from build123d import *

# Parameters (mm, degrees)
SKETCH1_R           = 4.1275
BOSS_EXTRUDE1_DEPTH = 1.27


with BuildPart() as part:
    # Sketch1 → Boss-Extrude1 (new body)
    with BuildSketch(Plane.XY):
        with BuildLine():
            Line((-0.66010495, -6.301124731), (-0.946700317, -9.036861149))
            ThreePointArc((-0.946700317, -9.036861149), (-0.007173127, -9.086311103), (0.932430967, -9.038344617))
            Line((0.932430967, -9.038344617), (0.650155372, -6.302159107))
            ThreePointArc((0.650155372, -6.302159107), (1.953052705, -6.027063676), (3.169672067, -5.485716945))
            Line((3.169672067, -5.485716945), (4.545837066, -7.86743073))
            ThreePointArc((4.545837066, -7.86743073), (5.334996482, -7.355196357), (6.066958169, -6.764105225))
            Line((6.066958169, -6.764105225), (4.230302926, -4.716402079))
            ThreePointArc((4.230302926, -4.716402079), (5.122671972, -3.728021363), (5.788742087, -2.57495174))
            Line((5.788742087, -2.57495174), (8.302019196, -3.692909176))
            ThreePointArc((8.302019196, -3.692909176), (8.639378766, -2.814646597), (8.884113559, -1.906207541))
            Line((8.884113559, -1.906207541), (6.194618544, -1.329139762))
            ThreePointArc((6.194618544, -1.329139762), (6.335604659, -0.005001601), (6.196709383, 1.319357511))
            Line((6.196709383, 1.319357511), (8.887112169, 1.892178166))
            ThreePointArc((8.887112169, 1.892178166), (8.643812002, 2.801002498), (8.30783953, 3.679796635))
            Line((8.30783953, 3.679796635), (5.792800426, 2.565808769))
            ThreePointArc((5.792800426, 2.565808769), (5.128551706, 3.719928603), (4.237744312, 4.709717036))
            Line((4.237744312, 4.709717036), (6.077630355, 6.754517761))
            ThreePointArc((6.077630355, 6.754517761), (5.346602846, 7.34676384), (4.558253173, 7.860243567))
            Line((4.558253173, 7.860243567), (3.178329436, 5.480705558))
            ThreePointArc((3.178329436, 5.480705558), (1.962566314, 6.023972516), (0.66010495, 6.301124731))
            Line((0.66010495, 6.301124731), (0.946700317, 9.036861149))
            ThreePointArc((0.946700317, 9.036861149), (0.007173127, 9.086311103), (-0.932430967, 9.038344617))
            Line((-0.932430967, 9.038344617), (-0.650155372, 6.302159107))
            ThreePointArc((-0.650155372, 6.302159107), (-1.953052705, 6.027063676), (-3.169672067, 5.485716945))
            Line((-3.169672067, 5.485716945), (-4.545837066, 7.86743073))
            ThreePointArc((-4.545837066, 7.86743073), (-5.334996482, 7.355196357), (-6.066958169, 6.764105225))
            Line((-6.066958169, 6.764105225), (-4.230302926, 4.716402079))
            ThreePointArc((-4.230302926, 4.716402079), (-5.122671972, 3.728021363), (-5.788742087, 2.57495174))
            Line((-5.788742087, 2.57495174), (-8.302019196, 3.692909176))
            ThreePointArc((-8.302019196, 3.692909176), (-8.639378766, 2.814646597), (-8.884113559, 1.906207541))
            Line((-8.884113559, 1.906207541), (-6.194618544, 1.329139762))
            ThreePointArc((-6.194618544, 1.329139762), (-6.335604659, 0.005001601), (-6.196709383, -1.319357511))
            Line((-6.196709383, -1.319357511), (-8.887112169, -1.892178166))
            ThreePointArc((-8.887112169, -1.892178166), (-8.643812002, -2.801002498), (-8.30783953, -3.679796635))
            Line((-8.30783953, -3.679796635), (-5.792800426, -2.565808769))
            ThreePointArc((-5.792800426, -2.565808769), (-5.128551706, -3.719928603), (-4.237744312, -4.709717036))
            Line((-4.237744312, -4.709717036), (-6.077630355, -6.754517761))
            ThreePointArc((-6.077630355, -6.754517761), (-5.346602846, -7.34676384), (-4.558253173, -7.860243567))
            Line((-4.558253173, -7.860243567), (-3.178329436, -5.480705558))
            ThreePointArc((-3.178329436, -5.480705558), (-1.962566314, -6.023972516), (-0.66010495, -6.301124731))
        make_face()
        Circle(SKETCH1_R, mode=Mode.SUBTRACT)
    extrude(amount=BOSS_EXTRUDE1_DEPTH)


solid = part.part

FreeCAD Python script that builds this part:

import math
import FreeCAD as App
import Part
import Sketcher
from FreeCAD import Vector
Q = App.Units.Quantity

doc = App.newDocument("Part")
body = doc.addObject("PartDesign::Body", "Body")

sketch1 = doc.addObject("Sketcher::SketchObject", "Sketch")
body.addObject(sketch1)
sketch1.AttachmentSupport = (doc.XY_Plane, [""])
sketch1.MapMode = "FlatFace"
sketch1.addGeometry([
    Part.LineSegment(Vector(-0.7, -6.3, 0), Vector(-0.9, -9, 0)),
    Part.ArcOfCircle(Part.Circle(Vector(0, 0, 0), Vector(0, 0, 1), 9.1), math.radians(-95.98), math.radians(-84.11)),
    Part.LineSegment(Vector(0.9, -9, 0), Vector(0.7, -6.3, 0)),
    Part.ArcOfCircle(Part.Circle(Vector(0, 0, 0), Vector(0, 0, 1), 6.3), math.radians(-84), math.radians(-60)),
    Part.LineSegment(Vector(3.2, -5.5, 0), Vector(4.5, -7.9, 0)),
    Part.ArcOfCircle(Part.Circle(Vector(0, 0, 0), Vector(0, 0, 1), 9.1), math.radians(-59.98), math.radians(-48.11)),
    Part.LineSegment(Vector(6.1, -6.8, 0), Vector(4.2, -4.7, 0)),
    Part.ArcOfCircle(Part.Circle(Vector(0, 0, 0), Vector(0, 0, 1), 6.3), math.radians(-48), math.radians(-24)),
    Part.LineSegment(Vector(5.8, -2.6, 0), Vector(8.3, -3.7, 0)),
    Part.ArcOfCircle(Part.Circle(Vector(0, 0, 0), Vector(0, 0, 1), 9.1), math.radians(-23.98), math.radians(-12.11)),
    Part.LineSegment(Vector(8.9, -1.9, 0), Vector(6.2, -1.3, 0)),
    Part.ArcOfCircle(Part.Circle(Vector(0, 0, 0), Vector(0, 0, 1), 6.3), math.radians(-12), math.radians(12)),
    Part.LineSegment(Vector(6.2, 1.3, 0), Vector(8.9, 1.9, 0)),
    Part.ArcOfCircle(Part.Circle(Vector(0, 0, 0), Vector(0, 0, 1), 9.1), math.radians(12.02), math.radians(23.89)),
    Part.LineSegment(Vector(8.3, 3.7, 0), Vector(5.8, 2.6, 0)),
    Part.ArcOfCircle(Part.Circle(Vector(0, 0, 0), Vector(0, 0, 1), 6.3), math.radians(24), math.radians(48)),
    Part.LineSegment(Vector(4.2, 4.7, 0), Vector(6.1, 6.8, 0)),
    Part.ArcOfCircle(Part.Circle(Vector(0, 0, 0), Vector(0, 0, 1), 9.1), math.radians(48.02), math.radians(59.89)),
    Part.LineSegment(Vector(4.6, 7.9, 0), Vector(3.2, 5.5, 0)),
    Part.ArcOfCircle(Part.Circle(Vector(0, 0, 0), Vector(0, 0, 1), 6.3), math.radians(60), math.radians(84)),
    Part.LineSegment(Vector(0.7, 6.3, 0), Vector(0.9, 9, 0)),
    Part.ArcOfCircle(Part.Circle(Vector(0, 0, 0), Vector(0, 0, 1), 9.1), math.radians(84.02), math.radians(95.89)),
    Part.LineSegment(Vector(-0.9, 9, 0), Vector(-0.7, 6.3, 0)),
    Part.ArcOfCircle(Part.Circle(Vector(0, 0, 0), Vector(0, 0, 1), 6.3), math.radians(96), math.radians(120)),
    Part.LineSegment(Vector(-3.2, 5.5, 0), Vector(-4.5, 7.9, 0)),
    Part.ArcOfCircle(Part.Circle(Vector(0, 0, 0), Vector(0, 0, 1), 9.1), math.radians(120.02), math.radians(131.89)),
    Part.LineSegment(Vector(-6.1, 6.8, 0), Vector(-4.2, 4.7, 0)),
    Part.ArcOfCircle(Part.Circle(Vector(0, 0, 0), Vector(0, 0, 1), 6.3), math.radians(132), math.radians(156)),
    Part.LineSegment(Vector(-5.8, 2.6, 0), Vector(-8.3, 3.7, 0)),
    Part.ArcOfCircle(Part.Circle(Vector(0, 0, 0), Vector(0, 0, 1), 9.1), math.radians(156.02), math.radians(167.89)),
    Part.LineSegment(Vector(-8.9, 1.9, 0), Vector(-6.2, 1.3, 0)),
    Part.ArcOfCircle(Part.Circle(Vector(0, 0, 0), Vector(0, 0, 1), 6.3), math.radians(168), math.radians(192)),
    Part.LineSegment(Vector(-6.2, -1.3, 0), Vector(-8.9, -1.9, 0)),
    Part.ArcOfCircle(Part.Circle(Vector(0, 0, 0), Vector(0, 0, 1), 9.1), math.radians(-167.98), math.radians(-156.11)),
    Part.LineSegment(Vector(-8.3, -3.7, 0), Vector(-5.8, -2.6, 0)),
    Part.ArcOfCircle(Part.Circle(Vector(0, 0, 0), Vector(0, 0, 1), 6.3), math.radians(-156), math.radians(-132)),
    Part.LineSegment(Vector(-4.2, -4.7, 0), Vector(-6.1, -6.8, 0)),
    Part.ArcOfCircle(Part.Circle(Vector(0, 0, 0), Vector(0, 0, 1), 9.1), math.radians(-131.98), math.radians(-120.11)),
    Part.LineSegment(Vector(-4.6, -7.9, 0), Vector(-3.2, -5.5, 0)),
    Part.ArcOfCircle(Part.Circle(Vector(0, 0, 0), Vector(0, 0, 1), 6.3), math.radians(-120), math.radians(-96)),
    Part.Circle(Vector(0, 0, 0), Vector(0, 0, 1), 4.1),
], False)
sketch1.addConstraint([
    Sketcher.Constraint("Coincident", 0, 2, 1, 1),
    Sketcher.Constraint("Coincident", 1, 2, 2, 1),
    Sketcher.Constraint("Coincident", 2, 2, 3, 1),
    Sketcher.Constraint("Coincident", 3, 2, 4, 1),
    Sketcher.Constraint("Coincident", 4, 2, 5, 1),
    Sketcher.Constraint("Coincident", 5, 2, 6, 1),
    Sketcher.Constraint("Coincident", 6, 2, 7, 1),
    Sketcher.Constraint("Coincident", 7, 2, 8, 1),
    Sketcher.Constraint("Coincident", 8, 2, 9, 1),
    Sketcher.Constraint("Coincident", 9, 2, 10, 1),
    Sketcher.Constraint("Coincident", 10, 2, 11, 1),
    Sketcher.Constraint("Coincident", 11, 2, 12, 1),
    Sketcher.Constraint("Coincident", 12, 2, 13, 1),
    Sketcher.Constraint("Coincident", 13, 2, 14, 1),
    Sketcher.Constraint("Coincident", 14, 2, 15, 1),
    Sketcher.Constraint("Coincident", 15, 2, 16, 1),
    Sketcher.Constraint("Coincident", 16, 2, 17, 1),
    Sketcher.Constraint("Coincident", 17, 2, 18, 1),
    Sketcher.Constraint("Coincident", 18, 2, 19, 1),
    Sketcher.Constraint("Coincident", 19, 2, 20, 1),
    Sketcher.Constraint("Coincident", 20, 2, 21, 1),
    Sketcher.Constraint("Coincident", 21, 2, 22, 1),
    Sketcher.Constraint("Coincident", 22, 2, 23, 1),
    Sketcher.Constraint("Coincident", 23, 2, 24, 1),
    Sketcher.Constraint("Coincident", 24, 2, 25, 1),
    Sketcher.Constraint("Coincident", 25, 2, 26, 1),
    Sketcher.Constraint("Coincident", 26, 2, 27, 1),
    Sketcher.Constraint("Coincident", 27, 2, 28, 1),
    Sketcher.Constraint("Coincident", 28, 2, 29, 1),
    Sketcher.Constraint("Coincident", 29, 2, 30, 1),
    Sketcher.Constraint("Coincident", 30, 2, 31, 1),
    Sketcher.Constraint("Coincident", 31, 2, 32, 1),
    Sketcher.Constraint("Coincident", 32, 2, 33, 1),
    Sketcher.Constraint("Coincident", 33, 2, 34, 1),
    Sketcher.Constraint("Coincident", 34, 2, 35, 1),
    Sketcher.Constraint("Coincident", 35, 2, 36, 1),
    Sketcher.Constraint("Coincident", 36, 2, 37, 1),
    Sketcher.Constraint("Coincident", 37, 2, 38, 1),
    Sketcher.Constraint("Coincident", 38, 2, 39, 1),
    Sketcher.Constraint("Coincident", 39, 2, 0, 1),
    Sketcher.Constraint("Coincident", 1, 3, -1, 1),
    Sketcher.Constraint("Coincident", 3, 3, -1, 1),
    Sketcher.Constraint("Coincident", 5, 3, -1, 1),
    Sketcher.Constraint("Coincident", 7, 3, -1, 1),
    Sketcher.Constraint("Coincident", 9, 3, -1, 1),
    Sketcher.Constraint("Coincident", 11, 3, -1, 1),
    Sketcher.Constraint("Coincident", 13, 3, -1, 1),
    Sketcher.Constraint("Coincident", 15, 3, -1, 1),
    Sketcher.Constraint("Coincident", 17, 3, -1, 1),
    Sketcher.Constraint("Coincident", 19, 3, -1, 1),
    Sketcher.Constraint("Coincident", 21, 3, -1, 1),
    Sketcher.Constraint("Coincident", 23, 3, -1, 1),
    Sketcher.Constraint("Coincident", 25, 3, -1, 1),
    Sketcher.Constraint("Coincident", 27, 3, -1, 1),
    Sketcher.Constraint("Coincident", 29, 3, -1, 1),
    Sketcher.Constraint("Coincident", 31, 3, -1, 1),
    Sketcher.Constraint("Coincident", 33, 3, -1, 1),
    Sketcher.Constraint("Coincident", 35, 3, -1, 1),
    Sketcher.Constraint("Coincident", 37, 3, -1, 1),
    Sketcher.Constraint("Coincident", 39, 3, -1, 1),
    Sketcher.Constraint("Coincident", 40, 3, -1, 1),
    Sketcher.Constraint("Equal", 1, 5),
    Sketcher.Constraint("Equal", 3, 7),
    Sketcher.Constraint("Equal", 5, 9),
    Sketcher.Constraint("Equal", 7, 11),
    Sketcher.Constraint("Equal", 9, 13),
    Sketcher.Constraint("Equal", 11, 15),
    Sketcher.Constraint("Equal", 13, 17),
    Sketcher.Constraint("Equal", 15, 19),
    Sketcher.Constraint("Equal", 17, 21),
    Sketcher.Constraint("Equal", 19, 23),
    Sketcher.Constraint("Equal", 21, 25),
    Sketcher.Constraint("Equal", 23, 27),
    Sketcher.Constraint("Equal", 25, 29),
    Sketcher.Constraint("Equal", 27, 31),
    Sketcher.Constraint("Equal", 29, 33),
    Sketcher.Constraint("Equal", 31, 35),
    Sketcher.Constraint("Equal", 33, 37),
    Sketcher.Constraint("Equal", 35, 39),
    Sketcher.Constraint("Parallel", 0, 20),
    Sketcher.Constraint("Parallel", 2, 22),
    Sketcher.Constraint("Parallel", 4, 24),
    Sketcher.Constraint("Parallel", 6, 26),
    Sketcher.Constraint("Parallel", 8, 28),
    Sketcher.Constraint("Parallel", 10, 30),
    Sketcher.Constraint("Parallel", 12, 32),
    Sketcher.Constraint("Parallel", 14, 34),
    Sketcher.Constraint("Parallel", 16, 36),
    Sketcher.Constraint("Parallel", 18, 38),
    Sketcher.Constraint("Diameter", 40, Q("0.325 in")),
    Sketcher.Constraint("Radius", 1, 9.086314),
    Sketcher.Constraint("Radius", 3, 6.335607),
    Sketcher.Constraint("DistanceX", 0, 2, -1, 1, 0.9467),
    Sketcher.Constraint("DistanceX", -1, 1, 14, 2, 5.7928),
    Sketcher.Constraint("DistanceX", -1, 1, 20, 2, 0.9467),
    Sketcher.Constraint("DistanceX", 34, 2, -1, 1, 5.7928),
    Sketcher.Constraint("DistanceX", -1, 1, 1, 2, 0.932431),
    Sketcher.Constraint("DistanceY", 2, 2, -1, 1, 6.302159),
    Sketcher.Constraint("DistanceY", 4, 2, -1, 1, 7.867431),
    Sketcher.Constraint("DistanceX", -1, 1, 5, 2, 6.066958),
    Sketcher.Constraint("DistanceY", 7, 2, -1, 1, 2.574952),
    Sketcher.Constraint("DistanceX", -1, 1, 8, 2, 8.302019),
    Sketcher.Constraint("DistanceX", -1, 1, 10, 2, 6.194619),
    Sketcher.Constraint("DistanceX", -1, 1, 11, 2, 6.196709),
    Sketcher.Constraint("DistanceY", -1, 1, 12, 2, 1.892178),
    Sketcher.Constraint("DistanceX", -1, 1, 13, 2, 8.30784),
    Sketcher.Constraint("DistanceX", -1, 1, 16, 2, 6.07763),
    Sketcher.Constraint("DistanceX", -1, 1, 18, 2, 3.178329),
    Sketcher.Constraint("DistanceX", 21, 2, -1, 1, 0.932431),
    Sketcher.Constraint("DistanceY", -1, 1, 24, 2, 7.867431),
    Sketcher.Constraint("DistanceX", 25, 2, -1, 1, 6.066958),
    Sketcher.Constraint("DistanceY", -1, 1, 27, 2, 2.574952),
    Sketcher.Constraint("DistanceX", 30, 2, -1, 1, 6.194619),
    Sketcher.Constraint("DistanceX", 31, 2, -1, 1, 6.196709),
    Sketcher.Constraint("DistanceX", 36, 2, -1, 1, 6.07763),
    Sketcher.Constraint("DistanceX", 38, 2, -1, 1, 3.178329),
    Sketcher.Constraint("DistanceX", -1, 1, 3, 2, 3.169672),
    Sketcher.Constraint("DistanceX", -1, 1, 6, 2, 4.230303),
    Sketcher.Constraint("DistanceX", -1, 1, 9, 2, 8.884114),
    Sketcher.Constraint("DistanceX", -1, 1, 15, 2, 4.237744),
    Sketcher.Constraint("DistanceX", -1, 1, 17, 2, 4.558253),
    Sketcher.Constraint("DistanceX", -1, 1, 19, 2, 0.660105),
])
pad1 = doc.addObject("PartDesign::Pad", "Pad")
body.addObject(pad1)
pad1.Profile = sketch1
pad1.Length = Q("0.05 in")

doc.recompute()
